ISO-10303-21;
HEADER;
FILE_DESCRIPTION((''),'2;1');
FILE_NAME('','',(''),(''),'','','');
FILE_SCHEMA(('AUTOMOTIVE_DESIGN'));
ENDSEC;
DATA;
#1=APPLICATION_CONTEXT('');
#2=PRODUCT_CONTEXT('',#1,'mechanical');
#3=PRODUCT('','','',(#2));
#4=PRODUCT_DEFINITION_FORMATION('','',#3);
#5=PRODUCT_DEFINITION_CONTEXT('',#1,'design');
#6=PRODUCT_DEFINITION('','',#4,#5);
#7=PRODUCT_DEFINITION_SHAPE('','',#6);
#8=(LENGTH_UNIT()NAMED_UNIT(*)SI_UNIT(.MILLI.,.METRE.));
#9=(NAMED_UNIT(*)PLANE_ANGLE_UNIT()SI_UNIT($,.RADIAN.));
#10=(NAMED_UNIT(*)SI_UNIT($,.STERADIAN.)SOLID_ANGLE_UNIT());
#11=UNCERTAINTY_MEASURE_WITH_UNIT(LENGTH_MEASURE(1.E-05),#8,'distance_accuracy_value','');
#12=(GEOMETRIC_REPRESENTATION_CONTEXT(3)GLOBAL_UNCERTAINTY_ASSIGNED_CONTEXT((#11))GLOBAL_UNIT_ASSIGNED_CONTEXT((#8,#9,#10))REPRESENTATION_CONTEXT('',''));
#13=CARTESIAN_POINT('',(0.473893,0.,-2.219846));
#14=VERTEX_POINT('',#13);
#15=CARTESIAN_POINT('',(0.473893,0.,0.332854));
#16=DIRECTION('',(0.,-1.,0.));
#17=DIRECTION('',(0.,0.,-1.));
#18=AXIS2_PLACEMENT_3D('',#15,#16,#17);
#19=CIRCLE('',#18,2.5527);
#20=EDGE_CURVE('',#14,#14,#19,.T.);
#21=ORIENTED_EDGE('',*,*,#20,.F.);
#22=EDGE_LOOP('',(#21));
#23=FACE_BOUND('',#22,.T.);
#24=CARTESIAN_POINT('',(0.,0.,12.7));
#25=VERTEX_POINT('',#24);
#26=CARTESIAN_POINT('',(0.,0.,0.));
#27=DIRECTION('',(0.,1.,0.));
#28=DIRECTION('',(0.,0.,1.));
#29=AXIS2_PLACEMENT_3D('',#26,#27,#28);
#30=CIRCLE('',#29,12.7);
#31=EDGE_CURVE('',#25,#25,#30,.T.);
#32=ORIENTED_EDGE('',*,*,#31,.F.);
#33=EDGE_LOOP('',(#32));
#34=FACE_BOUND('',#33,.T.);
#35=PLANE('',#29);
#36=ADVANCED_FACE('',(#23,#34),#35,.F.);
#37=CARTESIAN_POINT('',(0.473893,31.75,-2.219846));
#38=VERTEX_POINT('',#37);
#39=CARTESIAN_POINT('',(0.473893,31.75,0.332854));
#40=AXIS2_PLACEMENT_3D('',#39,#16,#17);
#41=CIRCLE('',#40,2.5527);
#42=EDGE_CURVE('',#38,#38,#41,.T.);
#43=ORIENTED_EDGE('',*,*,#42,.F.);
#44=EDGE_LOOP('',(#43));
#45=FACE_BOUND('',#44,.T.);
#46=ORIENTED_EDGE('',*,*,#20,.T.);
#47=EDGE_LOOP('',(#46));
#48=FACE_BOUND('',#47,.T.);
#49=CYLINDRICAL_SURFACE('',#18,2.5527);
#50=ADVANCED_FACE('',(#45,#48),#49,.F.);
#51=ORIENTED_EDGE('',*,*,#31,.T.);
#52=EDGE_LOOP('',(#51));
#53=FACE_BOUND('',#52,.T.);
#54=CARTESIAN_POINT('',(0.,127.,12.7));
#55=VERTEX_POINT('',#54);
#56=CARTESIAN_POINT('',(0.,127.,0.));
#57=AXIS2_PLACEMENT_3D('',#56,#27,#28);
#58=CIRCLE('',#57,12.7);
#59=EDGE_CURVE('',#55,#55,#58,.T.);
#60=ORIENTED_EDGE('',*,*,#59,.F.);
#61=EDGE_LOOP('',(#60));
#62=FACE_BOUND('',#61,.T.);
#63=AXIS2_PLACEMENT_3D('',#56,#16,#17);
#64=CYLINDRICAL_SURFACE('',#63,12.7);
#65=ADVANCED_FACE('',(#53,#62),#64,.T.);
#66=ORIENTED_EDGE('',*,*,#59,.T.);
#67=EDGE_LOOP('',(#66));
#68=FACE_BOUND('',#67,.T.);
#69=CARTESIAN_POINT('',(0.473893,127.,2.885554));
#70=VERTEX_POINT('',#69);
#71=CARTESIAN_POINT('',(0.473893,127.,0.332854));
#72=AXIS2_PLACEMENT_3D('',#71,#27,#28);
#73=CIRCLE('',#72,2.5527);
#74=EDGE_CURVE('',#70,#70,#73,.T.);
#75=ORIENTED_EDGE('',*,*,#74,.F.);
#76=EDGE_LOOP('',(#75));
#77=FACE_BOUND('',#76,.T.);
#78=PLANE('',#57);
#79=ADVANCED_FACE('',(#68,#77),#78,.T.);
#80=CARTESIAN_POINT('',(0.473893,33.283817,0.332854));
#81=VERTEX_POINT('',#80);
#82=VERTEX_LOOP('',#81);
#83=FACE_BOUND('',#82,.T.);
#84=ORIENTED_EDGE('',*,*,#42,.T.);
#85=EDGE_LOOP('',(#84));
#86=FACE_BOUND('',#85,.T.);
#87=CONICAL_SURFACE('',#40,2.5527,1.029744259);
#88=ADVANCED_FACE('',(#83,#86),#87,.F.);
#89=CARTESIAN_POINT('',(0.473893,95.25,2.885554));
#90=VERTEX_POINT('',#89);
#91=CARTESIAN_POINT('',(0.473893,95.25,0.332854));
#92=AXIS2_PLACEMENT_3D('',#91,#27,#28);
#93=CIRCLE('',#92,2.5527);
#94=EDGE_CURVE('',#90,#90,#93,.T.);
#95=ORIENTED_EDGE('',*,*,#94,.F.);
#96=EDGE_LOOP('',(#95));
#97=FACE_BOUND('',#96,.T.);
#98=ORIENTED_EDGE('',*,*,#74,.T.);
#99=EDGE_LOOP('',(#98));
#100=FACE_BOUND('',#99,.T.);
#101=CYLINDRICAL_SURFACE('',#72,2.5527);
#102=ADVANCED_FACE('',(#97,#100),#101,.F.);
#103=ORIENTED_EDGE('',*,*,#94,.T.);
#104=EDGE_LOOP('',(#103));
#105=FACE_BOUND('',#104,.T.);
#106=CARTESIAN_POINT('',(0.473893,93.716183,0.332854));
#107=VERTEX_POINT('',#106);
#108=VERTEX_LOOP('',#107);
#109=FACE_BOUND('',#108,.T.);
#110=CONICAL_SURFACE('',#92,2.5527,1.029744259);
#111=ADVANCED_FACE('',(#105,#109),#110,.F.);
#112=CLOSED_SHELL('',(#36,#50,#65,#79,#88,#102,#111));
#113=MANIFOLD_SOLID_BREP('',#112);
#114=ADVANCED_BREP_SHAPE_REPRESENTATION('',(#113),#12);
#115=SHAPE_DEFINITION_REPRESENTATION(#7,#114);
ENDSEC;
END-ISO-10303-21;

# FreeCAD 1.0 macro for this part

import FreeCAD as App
import Part
import Sketcher

V = App.Vector
Q = App.Units.Quantity


def add_polygon(sketch, points):
    """Adds a closed chain of lines whose ends are joined by coincident constraints."""
    first, n = sketch.GeometryCount, len(points)
    for a, b in zip(points, points[1:] + points[:1]):
        sketch.addGeometry(Part.LineSegment(App.Vector(*a, 0), App.Vector(*b, 0)), False)
    for i in range(n):
        sketch.addConstraint(Sketcher.Constraint("Coincident", first + i, 2, first + (i + 1) % n, 1))

doc = App.newDocument("Part")
body = doc.addObject("PartDesign::Body", "Body")

sketch1 = body.newObject("Sketcher::SketchObject", "Sketch")
sketch1.AttachmentSupport = (doc.getObject("XZ_Plane"), [""])
sketch1.MapMode = "FlatFace"
sketch1.addGeometry(Part.Circle(V(0, 0, 0), V(0, 0, 1), 13), False)
sketch1.addConstraint([
    Sketcher.Constraint("Coincident", 0, 3, -1, 1),
    Sketcher.Constraint("Diameter", 0, Q("1 in")),
])
pad1 = body.newObject("PartDesign::Pad", "Pad")
pad1.Profile = sketch1
pad1.Length = Q("5 in")
pad1.Reversed = True

sketch2 = body.newObject("Sketcher::SketchObject", "Sketch001")
sketch2.AttachmentSupport = (doc.getObject("YZ_Plane"), [""])
sketch2.MapMode = "FlatFace"
sketch2.AttachmentOffset = App.Placement(V(0, 0, 0.473893), App.Rotation())
add_polygon(sketch2, [(93.7, 0.3), (127, 0.3), (127, 2.9), (95.2, 2.9)])
sketch2.addGeometry(Part.LineSegment(V(127, 0.3, 0), V(93.7, 0.3, 0)), True)
sketch2.addConstraint([
    Sketcher.Constraint("Horizontal", 0),
    Sketcher.Constraint("Vertical", 1),
    Sketcher.Constraint("Horizontal", 2),
    Sketcher.Constraint("Horizontal", 4),
    Sketcher.Constraint("Coincident", 4, 1, 0, 2),
    Sketcher.Constraint("Equal", 0, 4),
    Sketcher.Constraint("DistanceX", -1, 1, 0, 2, Q("5 in")),
    Sketcher.Constraint("Angle", 3, Q("-121 deg")),
    Sketcher.Constraint("DistanceX", 2, 2, 2, 1, Q("1.25 in")),
    Sketcher.Constraint("DistanceY", 1, 1, 1, 2, Q("0.1005 in")),
    Sketcher.Constraint("DistanceY", -1, 1, 0, 2, Q("0.332854 mm")),
])
groove = body.newObject("PartDesign::Groove", "Groove")
groove.Profile = sketch2
groove.ReferenceAxis = (sketch2, ["Axis0"])
groove.Angle = 360
doc.recompute()

datumplane = body.newObject("PartDesign::Plane", "DatumPlane")
datumplane.AttachmentSupport = (doc.getObject("XZ_Plane"), [""])
datumplane.MapMode = "FlatFace"
datumplane.AttachmentOffset = App.Placement(V(0, 0, -2.5 * 25.4), App.Rotation())
mirrored = body.newObject("PartDesign::Mirrored", "Mirrored")
mirrored.Originals = [groove]
mirrored.MirrorPlane = (datumplane, [""])
body.Tip = mirrored

doc.recompute()
